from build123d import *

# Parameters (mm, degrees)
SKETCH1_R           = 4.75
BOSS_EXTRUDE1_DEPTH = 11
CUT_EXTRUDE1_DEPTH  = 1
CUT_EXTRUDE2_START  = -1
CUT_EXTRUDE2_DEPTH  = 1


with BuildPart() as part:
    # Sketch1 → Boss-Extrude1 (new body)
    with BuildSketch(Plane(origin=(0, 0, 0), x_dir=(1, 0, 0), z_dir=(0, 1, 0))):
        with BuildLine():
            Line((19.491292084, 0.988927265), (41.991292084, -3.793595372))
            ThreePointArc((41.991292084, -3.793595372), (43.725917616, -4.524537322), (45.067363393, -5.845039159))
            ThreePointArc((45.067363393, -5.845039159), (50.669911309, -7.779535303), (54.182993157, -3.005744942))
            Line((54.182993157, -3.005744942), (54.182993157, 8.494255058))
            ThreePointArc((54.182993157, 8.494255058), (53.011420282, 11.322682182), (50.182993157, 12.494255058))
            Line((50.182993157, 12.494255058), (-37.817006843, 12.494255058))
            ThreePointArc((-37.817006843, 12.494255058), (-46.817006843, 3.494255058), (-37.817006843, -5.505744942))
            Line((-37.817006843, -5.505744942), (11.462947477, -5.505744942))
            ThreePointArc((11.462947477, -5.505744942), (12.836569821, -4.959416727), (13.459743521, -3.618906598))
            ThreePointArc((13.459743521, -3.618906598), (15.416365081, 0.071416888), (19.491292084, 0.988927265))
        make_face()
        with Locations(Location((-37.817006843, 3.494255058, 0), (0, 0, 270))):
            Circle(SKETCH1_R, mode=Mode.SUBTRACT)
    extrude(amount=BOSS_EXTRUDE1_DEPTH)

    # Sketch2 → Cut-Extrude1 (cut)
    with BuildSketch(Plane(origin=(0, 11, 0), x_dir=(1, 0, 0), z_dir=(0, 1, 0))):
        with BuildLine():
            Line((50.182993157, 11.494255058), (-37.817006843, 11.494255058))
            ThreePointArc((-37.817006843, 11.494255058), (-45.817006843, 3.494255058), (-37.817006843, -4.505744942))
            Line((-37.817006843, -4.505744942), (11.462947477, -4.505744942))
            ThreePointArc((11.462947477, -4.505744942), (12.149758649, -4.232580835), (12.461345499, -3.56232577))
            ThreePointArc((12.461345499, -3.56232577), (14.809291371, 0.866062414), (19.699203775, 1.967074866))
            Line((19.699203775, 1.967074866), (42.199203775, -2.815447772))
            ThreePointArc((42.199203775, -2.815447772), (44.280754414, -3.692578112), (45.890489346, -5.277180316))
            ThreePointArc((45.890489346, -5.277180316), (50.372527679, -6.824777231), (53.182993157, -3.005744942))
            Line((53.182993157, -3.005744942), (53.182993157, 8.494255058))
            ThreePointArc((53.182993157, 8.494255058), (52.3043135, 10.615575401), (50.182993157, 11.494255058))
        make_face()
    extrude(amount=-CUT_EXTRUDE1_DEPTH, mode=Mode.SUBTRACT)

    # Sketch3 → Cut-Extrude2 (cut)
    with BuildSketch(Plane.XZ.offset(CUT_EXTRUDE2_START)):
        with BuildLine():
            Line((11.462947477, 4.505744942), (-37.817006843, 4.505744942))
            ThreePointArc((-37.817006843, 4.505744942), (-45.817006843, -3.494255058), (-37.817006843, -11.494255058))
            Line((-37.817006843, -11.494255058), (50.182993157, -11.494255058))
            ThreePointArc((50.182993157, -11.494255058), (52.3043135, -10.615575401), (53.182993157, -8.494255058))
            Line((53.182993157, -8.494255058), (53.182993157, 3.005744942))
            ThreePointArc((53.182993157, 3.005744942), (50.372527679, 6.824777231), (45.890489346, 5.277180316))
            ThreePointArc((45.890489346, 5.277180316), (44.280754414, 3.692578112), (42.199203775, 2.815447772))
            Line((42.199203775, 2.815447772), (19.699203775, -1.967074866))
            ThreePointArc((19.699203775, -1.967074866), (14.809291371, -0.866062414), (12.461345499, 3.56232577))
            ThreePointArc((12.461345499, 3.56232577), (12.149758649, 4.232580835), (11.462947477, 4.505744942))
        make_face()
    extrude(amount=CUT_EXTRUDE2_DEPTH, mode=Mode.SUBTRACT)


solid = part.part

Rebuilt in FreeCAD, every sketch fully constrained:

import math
import FreeCAD as App
import Part
import Sketcher

V = App.Vector
Q = App.Units.Quantity

doc = App.newDocument("Part")
body = doc.addObject("PartDesign::Body", "Body")

# Sketch on XZ plane
sketch1 = body.newObject("Sketcher::SketchObject", "Sketch")
sketch1.AttachmentSupport = (doc.getObject("XZ_Plane"), [""])
sketch1.MapMode = "FlatFace"
sketch1.addGeometry(Part.LineSegment(V(19.491292, -0.988927, 0), V(41.991292, 3.793595, 0)), False)
sketch1.addGeometry(Part.ArcOfCircle(Part.Circle(V(40.951734, 8.684333, 0), V(0, 0, 1), 5), math.radians(-78), math.radians(-34.601051)), False)
sketch1.addGeometry(Part.ArcOfCircle(Part.Circle(V(49.182993, 3.005745, 0), V(0, 0, 1), 5), math.radians(0), math.radians(145.398949)), False)
sketch1.addGeometry(Part.LineSegment(V(54.182993, 3.005745, 0), V(54.182993, -8.494255, 0)), False)
sketch1.addGeometry(Part.ArcOfCircle(Part.Circle(V(50.182993, -8.494255, 0), V(0, 0, 1), 4), math.radians(-90), math.radians(0)), False)
sketch1.addGeometry(Part.LineSegment(V(50.182993, -12.494255, 0), V(-37.817007, -12.494255, 0)), False)
sketch1.addGeometry(Part.ArcOfCircle(Part.Circle(V(-37.817007, -3.494255, 0), V(0, 0, 1), 9), math.radians(90), math.radians(270)), False)
sketch1.addGeometry(Part.LineSegment(V(-37.817007, 5.505745, 0), V(11.462947, 5.505745, 0)), False)
sketch1.addGeometry(Part.ArcOfCircle(Part.Circle(V(11.462947, 3.505745, 0), V(0, 0, 1), 2), math.radians(3.243575), math.radians(90)), False)
sketch1.addGeometry(Part.ArcOfCircle(Part.Circle(V(18.451734, 3.901811, 0), V(0, 0, 1), 5), math.radians(-176.756425), math.radians(-78)), False)
sketch1.addGeometry(Part.Circle(V(-37.817007, -3.494255, 0), V(0, 0, 1), 4.75), False)
sketch1.addConstraint(Sketcher.Constraint("Tangent", 0, 2, 1, 1))
sketch1.addConstraint(Sketcher.Constraint("Tangent", 1, 2, 2, 2))
sketch1.addConstraint(Sketcher.Constraint("Tangent", 2, 1, 3, 1))
sketch1.addConstraint(Sketcher.Constraint("Tangent", 3, 2, 4, 2))
sketch1.addConstraint(Sketcher.Constraint("Tangent", 4, 1, 5, 1))
sketch1.addConstraint(Sketcher.Constraint("Tangent", 5, 2, 6, 2))
sketch1.addConstraint(Sketcher.Constraint("Tangent", 6, 1, 7, 1))
sketch1.addConstraint(Sketcher.Constraint("Tangent", 7, 2, 8, 2))
sketch1.addConstraint(Sketcher.Constraint("Tangent", 8, 1, 9, 1))
sketch1.addConstraint(Sketcher.Constraint("Tangent", 9, 2, 0, 1))
sketch1.addConstraint(Sketcher.Constraint("Vertical", 3))
sketch1.addConstraint(Sketcher.Constraint("Horizontal", 5))
sketch1.addConstraint(Sketcher.Constraint("Horizontal", 7))
sketch1.addConstraint(Sketcher.Constraint("Coincident", 10, 3, 6, 3))
sketch1.addConstraint(Sketcher.Constraint("Equal", 1, 2))
sketch1.addConstraint(Sketcher.Constraint("Equal", 2, 9))
sketch1.addConstraint(Sketcher.Constraint("Radius", 1, Q("5 mm")))
sketch1.addConstraint(Sketcher.Constraint("Radius", 4, Q("4 mm")))
sketch1.addConstraint(Sketcher.Constraint("Radius", 6, Q("9 mm")))
sketch1.addConstraint(Sketcher.Constraint("Radius", 8, Q("2 mm")))
sketch1.addConstraint(Sketcher.Constraint("Diameter", 10, Q("9.5 mm")))
sketch1.addConstraint(Sketcher.Constraint("DistanceX", 5, 2, 5, 1, Q("88 mm")))
sketch1.addConstraint(Sketcher.Constraint("Angle", 0, Q("12 deg")))
sketch1.addConstraint(Sketcher.Constraint("DistanceY", 3, 2, 3, 1, Q("11.5 mm")))
sketch1.addConstraint(Sketcher.Constraint("DistanceX", 9, 3, 1, 3, Q("22.5 mm")))
sketch1.addConstraint(Sketcher.Constraint("DistanceX", 0, 2, 2, 3, Q("7.191701 mm")))
sketch1.addConstraint(Sketcher.Constraint("DistanceY", -1, 1, 9, 3, Q("3.901811 mm")))
sketch1.addConstraint(Sketcher.Constraint("DistanceX", -1, 1, 1, 3, Q("40.951734 mm")))
pad1 = body.newObject("PartDesign::Pad", "Pad")
pad1.Profile = sketch1
pad1.Length = 11
pad1.Reversed = True

# Sketch on XZ plane
sketch2 = body.newObject("Sketcher::SketchObject", "Sketch001")
sketch2.AttachmentSupport = (doc.getObject("XZ_Plane"), [""])
sketch2.MapMode = "FlatFace"
sketch2.AttachmentOffset = App.Placement(V(0, 0, -11), App.Rotation())
sketch2.addGeometry(Part.LineSegment(V(50.182993, -11.494255, 0), V(-37.817007, -11.494255, 0)), False)
sketch2.addGeometry(Part.ArcOfCircle(Part.Circle(V(-37.817007, -3.494255, 0), V(0, 0, 1), 8), math.radians(90), math.radians(270)), False)
sketch2.addGeometry(Part.LineSegment(V(-37.817007, 4.505745, 0), V(11.462947, 4.505745, 0)), False)
sketch2.addGeometry(Part.ArcOfCircle(Part.Circle(V(11.462947, 3.505745, 0), V(0, 0, 1), 1), math.radians(3.243575), math.radians(90)), False)
sketch2.addGeometry(Part.ArcOfCircle(Part.Circle(V(18.451734, 3.901811, 0), V(0, 0, 1), 6), math.radians(-176.756425), math.radians(-78)), False)
sketch2.addGeometry(Part.LineSegment(V(19.699204, -1.967075, 0), V(42.199204, 2.815448, 0)), False)
sketch2.addGeometry(Part.ArcOfCircle(Part.Circle(V(40.951734, 8.684333, 0), V(0, 0, 1), 6), math.radians(-78), math.radians(-34.601051)), False)
sketch2.addGeometry(Part.ArcOfCircle(Part.Circle(V(49.182993, 3.005745, 0), V(0, 0, 1), 4), math.radians(0), math.radians(145.398949)), False)
sketch2.addGeometry(Part.LineSegment(V(53.182993, 3.005745, 0), V(53.182993, -8.494255, 0)), False)
sketch2.addGeometry(Part.ArcOfCircle(Part.Circle(V(50.182993, -8.494255, 0), V(0, 0, 1), 3), math.radians(-90), math.radians(0)), False)
sketch2.addConstraint(Sketcher.Constraint("Tangent", 0, 2, 1, 2))
sketch2.addConstraint(Sketcher.Constraint("Tangent", 1, 1, 2, 1))
sketch2.addConstraint(Sketcher.Constraint("Tangent", 2, 2, 3, 2))
sketch2.addConstraint(Sketcher.Constraint("Tangent", 3, 1, 4, 1))
sketch2.addConstraint(Sketcher.Constraint("Tangent", 4, 2, 5, 1))
sketch2.addConstraint(Sketcher.Constraint("Tangent", 5, 2, 6, 1))
sketch2.addConstraint(Sketcher.Constraint("Tangent", 6, 2, 7, 2))
sketch2.addConstraint(Sketcher.Constraint("Tangent", 7, 1, 8, 1))
sketch2.addConstraint(Sketcher.Constraint("Tangent", 8, 2, 9, 2))
sketch2.addConstraint(Sketcher.Constraint("Tangent", 9, 1, 0, 1))
sketch2.addConstraint(Sketcher.Constraint("Horizontal", 0))
sketch2.addConstraint(Sketcher.Constraint("Horizontal", 2))
sketch2.addConstraint(Sketcher.Constraint("Vertical", 8))
sketch2.addConstraint(Sketcher.Constraint("Equal", 4, 6))
sketch2.addConstraint(Sketcher.Constraint("Radius", 1, Q("8 mm")))
sketch2.addConstraint(Sketcher.Constraint("Radius", 3, Q("1 mm")))
sketch2.addConstraint(Sketcher.Constraint("Radius", 4, Q("6 mm")))
sketch2.addConstraint(Sketcher.Constraint("Radius", 7, Q("4 mm")))
sketch2.addConstraint(Sketcher.Constraint("Radius", 9, Q("3 mm")))
sketch2.addConstraint(Sketcher.Constraint("DistanceX", 0, 2, 0, 1, Q("88 mm")))
sketch2.addConstraint(Sketcher.Constraint("Angle", 5, Q("12 deg")))
sketch2.addConstraint(Sketcher.Constraint("DistanceY", 8, 2, 8, 1, Q("11.5 mm")))
sketch2.addConstraint(Sketcher.Constraint("DistanceX", 4, 3, 6, 3, Q("22.5 mm")))
sketch2.addConstraint(Sketcher.Constraint("DistanceX", 3, 3, 3, 1, Q("0.998398 mm")))
sketch2.addConstraint(Sketcher.Constraint("DistanceY", -1, 1, 4, 3, Q("3.901811 mm")))
sketch2.addConstraint(Sketcher.Constraint("DistanceX", -1, 1, 6, 2, Q("45.890489 mm")))
pocket1 = body.newObject("PartDesign::Pocket", "Pocket")
pocket1.Profile = sketch2
pocket1.Length = 1
pocket1.Reversed = True

# Sketch on XZ plane
sketch3 = body.newObject("Sketcher::SketchObject", "Sketch002")
sketch3.AttachmentSupport = (doc.getObject("XZ_Plane"), [""])
sketch3.MapMode = "FlatFace"
sketch3.AttachmentOffset = App.Placement(V(0, 0, -1), App.Rotation())
sketch3.addGeometry(Part.LineSegment(V(11.462947, 4.505745, 0), V(-37.817007, 4.505745, 0)), False)
sketch3.addGeometry(Part.ArcOfCircle(Part.Circle(V(-37.817007, -3.494255, 0), V(0, 0, 1), 8), math.radians(90), math.radians(270)), False)
sketch3.addGeometry(Part.LineSegment(V(-37.817007, -11.494255, 0), V(50.182993, -11.494255, 0)), False)
sketch3.addGeometry(Part.ArcOfCircle(Part.Circle(V(50.182993, -8.494255, 0), V(0, 0, 1), 3), math.radians(-90), math.radians(0)), False)
sketch3.addGeometry(Part.LineSegment(V(53.182993, -8.494255, 0), V(53.182993, 3.005745, 0)), False)
sketch3.addGeometry(Part.ArcOfCircle(Part.Circle(V(49.182993, 3.005745, 0), V(0, 0, 1), 4), math.radians(0), math.radians(145.398949)), False)
sketch3.addGeometry(Part.ArcOfCircle(Part.Circle(V(40.951734, 8.684333, 0), V(0, 0, 1), 6), math.radians(-78), math.radians(-34.601051)), False)
sketch3.addGeometry(Part.LineSegment(V(42.199204, 2.815448, 0), V(19.699204, -1.967075, 0)), False)
sketch3.addGeometry(Part.ArcOfCircle(Part.Circle(V(18.451734, 3.901811, 0), V(0, 0, 1), 6), math.radians(-176.756425), math.radians(-78)), False)
sketch3.addGeometry(Part.ArcOfCircle(Part.Circle(V(11.462947, 3.505745, 0), V(0, 0, 1), 1), math.radians(3.243575), math.radians(90)), False)
sketch3.addConstraint(Sketcher.Constraint("Tangent", 0, 2, 1, 1))
sketch3.addConstraint(Sketcher.Constraint("Tangent", 1, 2, 2, 1))
sketch3.addConstraint(Sketcher.Constraint("Tangent", 2, 2, 3, 1))
sketch3.addConstraint(Sketcher.Constraint("Tangent", 3, 2, 4, 1))
sketch3.addConstraint(Sketcher.Constraint("Tangent", 4, 2, 5, 1))
sketch3.addConstraint(Sketcher.Constraint("Tangent", 5, 2, 6, 2))
sketch3.addConstraint(Sketcher.Constraint("Tangent", 6, 1, 7, 1))
sketch3.addConstraint(Sketcher.Constraint("Tangent", 7, 2, 8, 2))
sketch3.addConstraint(Sketcher.Constraint("Tangent", 8, 1, 9, 1))
sketch3.addConstraint(Sketcher.Constraint("Tangent", 9, 2, 0, 1))
sketch3.addConstraint(Sketcher.Constraint("Horizontal", 0))
sketch3.addConstraint(Sketcher.Constraint("Horizontal", 2))
sketch3.addConstraint(Sketcher.Constraint("Vertical", 4))
sketch3.addConstraint(Sketcher.Constraint("Equal", 6, 8))
sketch3.addConstraint(Sketcher.Constraint("Radius", 1, Q("8 mm")))
sketch3.addConstraint(Sketcher.Constraint("Radius", 3, Q("3 mm")))
sketch3.addConstraint(Sketcher.Constraint("Radius", 5, Q("4 mm")))
sketch3.addConstraint(Sketcher.Constraint("Radius", 6, Q("6 mm")))
sketch3.addConstraint(Sketcher.Constraint("Radius", 9, Q("1 mm")))
sketch3.addConstraint(Sketcher.Constraint("DistanceX", 2, 1, 2, 2, Q("88 mm")))
sketch3.addConstraint(Sketcher.Constraint("Angle", 7, Q("-168 deg")))
sketch3.addConstraint(Sketcher.Constraint("DistanceY", 4, 1, 4, 2, Q("11.5 mm")))
sketch3.addConstraint(Sketcher.Constraint("DistanceX", 8, 3, 6, 3, Q("22.5 mm")))
sketch3.addConstraint(Sketcher.Constraint("DistanceX", 9, 3, 8, 1, Q("0.998398 mm")))
sketch3.addConstraint(Sketcher.Constraint("DistanceY", -1, 1, 8, 3, Q("3.901811 mm")))
sketch3.addConstraint(Sketcher.Constraint("DistanceX", -1, 1, 5, 2, Q("45.890489 mm")))
pocket2 = body.newObject("PartDesign::Pocket", "Pocket001")
pocket2.Profile = sketch3
pocket2.Length = 1
pocket2.Reversed = True

doc.recompute()
